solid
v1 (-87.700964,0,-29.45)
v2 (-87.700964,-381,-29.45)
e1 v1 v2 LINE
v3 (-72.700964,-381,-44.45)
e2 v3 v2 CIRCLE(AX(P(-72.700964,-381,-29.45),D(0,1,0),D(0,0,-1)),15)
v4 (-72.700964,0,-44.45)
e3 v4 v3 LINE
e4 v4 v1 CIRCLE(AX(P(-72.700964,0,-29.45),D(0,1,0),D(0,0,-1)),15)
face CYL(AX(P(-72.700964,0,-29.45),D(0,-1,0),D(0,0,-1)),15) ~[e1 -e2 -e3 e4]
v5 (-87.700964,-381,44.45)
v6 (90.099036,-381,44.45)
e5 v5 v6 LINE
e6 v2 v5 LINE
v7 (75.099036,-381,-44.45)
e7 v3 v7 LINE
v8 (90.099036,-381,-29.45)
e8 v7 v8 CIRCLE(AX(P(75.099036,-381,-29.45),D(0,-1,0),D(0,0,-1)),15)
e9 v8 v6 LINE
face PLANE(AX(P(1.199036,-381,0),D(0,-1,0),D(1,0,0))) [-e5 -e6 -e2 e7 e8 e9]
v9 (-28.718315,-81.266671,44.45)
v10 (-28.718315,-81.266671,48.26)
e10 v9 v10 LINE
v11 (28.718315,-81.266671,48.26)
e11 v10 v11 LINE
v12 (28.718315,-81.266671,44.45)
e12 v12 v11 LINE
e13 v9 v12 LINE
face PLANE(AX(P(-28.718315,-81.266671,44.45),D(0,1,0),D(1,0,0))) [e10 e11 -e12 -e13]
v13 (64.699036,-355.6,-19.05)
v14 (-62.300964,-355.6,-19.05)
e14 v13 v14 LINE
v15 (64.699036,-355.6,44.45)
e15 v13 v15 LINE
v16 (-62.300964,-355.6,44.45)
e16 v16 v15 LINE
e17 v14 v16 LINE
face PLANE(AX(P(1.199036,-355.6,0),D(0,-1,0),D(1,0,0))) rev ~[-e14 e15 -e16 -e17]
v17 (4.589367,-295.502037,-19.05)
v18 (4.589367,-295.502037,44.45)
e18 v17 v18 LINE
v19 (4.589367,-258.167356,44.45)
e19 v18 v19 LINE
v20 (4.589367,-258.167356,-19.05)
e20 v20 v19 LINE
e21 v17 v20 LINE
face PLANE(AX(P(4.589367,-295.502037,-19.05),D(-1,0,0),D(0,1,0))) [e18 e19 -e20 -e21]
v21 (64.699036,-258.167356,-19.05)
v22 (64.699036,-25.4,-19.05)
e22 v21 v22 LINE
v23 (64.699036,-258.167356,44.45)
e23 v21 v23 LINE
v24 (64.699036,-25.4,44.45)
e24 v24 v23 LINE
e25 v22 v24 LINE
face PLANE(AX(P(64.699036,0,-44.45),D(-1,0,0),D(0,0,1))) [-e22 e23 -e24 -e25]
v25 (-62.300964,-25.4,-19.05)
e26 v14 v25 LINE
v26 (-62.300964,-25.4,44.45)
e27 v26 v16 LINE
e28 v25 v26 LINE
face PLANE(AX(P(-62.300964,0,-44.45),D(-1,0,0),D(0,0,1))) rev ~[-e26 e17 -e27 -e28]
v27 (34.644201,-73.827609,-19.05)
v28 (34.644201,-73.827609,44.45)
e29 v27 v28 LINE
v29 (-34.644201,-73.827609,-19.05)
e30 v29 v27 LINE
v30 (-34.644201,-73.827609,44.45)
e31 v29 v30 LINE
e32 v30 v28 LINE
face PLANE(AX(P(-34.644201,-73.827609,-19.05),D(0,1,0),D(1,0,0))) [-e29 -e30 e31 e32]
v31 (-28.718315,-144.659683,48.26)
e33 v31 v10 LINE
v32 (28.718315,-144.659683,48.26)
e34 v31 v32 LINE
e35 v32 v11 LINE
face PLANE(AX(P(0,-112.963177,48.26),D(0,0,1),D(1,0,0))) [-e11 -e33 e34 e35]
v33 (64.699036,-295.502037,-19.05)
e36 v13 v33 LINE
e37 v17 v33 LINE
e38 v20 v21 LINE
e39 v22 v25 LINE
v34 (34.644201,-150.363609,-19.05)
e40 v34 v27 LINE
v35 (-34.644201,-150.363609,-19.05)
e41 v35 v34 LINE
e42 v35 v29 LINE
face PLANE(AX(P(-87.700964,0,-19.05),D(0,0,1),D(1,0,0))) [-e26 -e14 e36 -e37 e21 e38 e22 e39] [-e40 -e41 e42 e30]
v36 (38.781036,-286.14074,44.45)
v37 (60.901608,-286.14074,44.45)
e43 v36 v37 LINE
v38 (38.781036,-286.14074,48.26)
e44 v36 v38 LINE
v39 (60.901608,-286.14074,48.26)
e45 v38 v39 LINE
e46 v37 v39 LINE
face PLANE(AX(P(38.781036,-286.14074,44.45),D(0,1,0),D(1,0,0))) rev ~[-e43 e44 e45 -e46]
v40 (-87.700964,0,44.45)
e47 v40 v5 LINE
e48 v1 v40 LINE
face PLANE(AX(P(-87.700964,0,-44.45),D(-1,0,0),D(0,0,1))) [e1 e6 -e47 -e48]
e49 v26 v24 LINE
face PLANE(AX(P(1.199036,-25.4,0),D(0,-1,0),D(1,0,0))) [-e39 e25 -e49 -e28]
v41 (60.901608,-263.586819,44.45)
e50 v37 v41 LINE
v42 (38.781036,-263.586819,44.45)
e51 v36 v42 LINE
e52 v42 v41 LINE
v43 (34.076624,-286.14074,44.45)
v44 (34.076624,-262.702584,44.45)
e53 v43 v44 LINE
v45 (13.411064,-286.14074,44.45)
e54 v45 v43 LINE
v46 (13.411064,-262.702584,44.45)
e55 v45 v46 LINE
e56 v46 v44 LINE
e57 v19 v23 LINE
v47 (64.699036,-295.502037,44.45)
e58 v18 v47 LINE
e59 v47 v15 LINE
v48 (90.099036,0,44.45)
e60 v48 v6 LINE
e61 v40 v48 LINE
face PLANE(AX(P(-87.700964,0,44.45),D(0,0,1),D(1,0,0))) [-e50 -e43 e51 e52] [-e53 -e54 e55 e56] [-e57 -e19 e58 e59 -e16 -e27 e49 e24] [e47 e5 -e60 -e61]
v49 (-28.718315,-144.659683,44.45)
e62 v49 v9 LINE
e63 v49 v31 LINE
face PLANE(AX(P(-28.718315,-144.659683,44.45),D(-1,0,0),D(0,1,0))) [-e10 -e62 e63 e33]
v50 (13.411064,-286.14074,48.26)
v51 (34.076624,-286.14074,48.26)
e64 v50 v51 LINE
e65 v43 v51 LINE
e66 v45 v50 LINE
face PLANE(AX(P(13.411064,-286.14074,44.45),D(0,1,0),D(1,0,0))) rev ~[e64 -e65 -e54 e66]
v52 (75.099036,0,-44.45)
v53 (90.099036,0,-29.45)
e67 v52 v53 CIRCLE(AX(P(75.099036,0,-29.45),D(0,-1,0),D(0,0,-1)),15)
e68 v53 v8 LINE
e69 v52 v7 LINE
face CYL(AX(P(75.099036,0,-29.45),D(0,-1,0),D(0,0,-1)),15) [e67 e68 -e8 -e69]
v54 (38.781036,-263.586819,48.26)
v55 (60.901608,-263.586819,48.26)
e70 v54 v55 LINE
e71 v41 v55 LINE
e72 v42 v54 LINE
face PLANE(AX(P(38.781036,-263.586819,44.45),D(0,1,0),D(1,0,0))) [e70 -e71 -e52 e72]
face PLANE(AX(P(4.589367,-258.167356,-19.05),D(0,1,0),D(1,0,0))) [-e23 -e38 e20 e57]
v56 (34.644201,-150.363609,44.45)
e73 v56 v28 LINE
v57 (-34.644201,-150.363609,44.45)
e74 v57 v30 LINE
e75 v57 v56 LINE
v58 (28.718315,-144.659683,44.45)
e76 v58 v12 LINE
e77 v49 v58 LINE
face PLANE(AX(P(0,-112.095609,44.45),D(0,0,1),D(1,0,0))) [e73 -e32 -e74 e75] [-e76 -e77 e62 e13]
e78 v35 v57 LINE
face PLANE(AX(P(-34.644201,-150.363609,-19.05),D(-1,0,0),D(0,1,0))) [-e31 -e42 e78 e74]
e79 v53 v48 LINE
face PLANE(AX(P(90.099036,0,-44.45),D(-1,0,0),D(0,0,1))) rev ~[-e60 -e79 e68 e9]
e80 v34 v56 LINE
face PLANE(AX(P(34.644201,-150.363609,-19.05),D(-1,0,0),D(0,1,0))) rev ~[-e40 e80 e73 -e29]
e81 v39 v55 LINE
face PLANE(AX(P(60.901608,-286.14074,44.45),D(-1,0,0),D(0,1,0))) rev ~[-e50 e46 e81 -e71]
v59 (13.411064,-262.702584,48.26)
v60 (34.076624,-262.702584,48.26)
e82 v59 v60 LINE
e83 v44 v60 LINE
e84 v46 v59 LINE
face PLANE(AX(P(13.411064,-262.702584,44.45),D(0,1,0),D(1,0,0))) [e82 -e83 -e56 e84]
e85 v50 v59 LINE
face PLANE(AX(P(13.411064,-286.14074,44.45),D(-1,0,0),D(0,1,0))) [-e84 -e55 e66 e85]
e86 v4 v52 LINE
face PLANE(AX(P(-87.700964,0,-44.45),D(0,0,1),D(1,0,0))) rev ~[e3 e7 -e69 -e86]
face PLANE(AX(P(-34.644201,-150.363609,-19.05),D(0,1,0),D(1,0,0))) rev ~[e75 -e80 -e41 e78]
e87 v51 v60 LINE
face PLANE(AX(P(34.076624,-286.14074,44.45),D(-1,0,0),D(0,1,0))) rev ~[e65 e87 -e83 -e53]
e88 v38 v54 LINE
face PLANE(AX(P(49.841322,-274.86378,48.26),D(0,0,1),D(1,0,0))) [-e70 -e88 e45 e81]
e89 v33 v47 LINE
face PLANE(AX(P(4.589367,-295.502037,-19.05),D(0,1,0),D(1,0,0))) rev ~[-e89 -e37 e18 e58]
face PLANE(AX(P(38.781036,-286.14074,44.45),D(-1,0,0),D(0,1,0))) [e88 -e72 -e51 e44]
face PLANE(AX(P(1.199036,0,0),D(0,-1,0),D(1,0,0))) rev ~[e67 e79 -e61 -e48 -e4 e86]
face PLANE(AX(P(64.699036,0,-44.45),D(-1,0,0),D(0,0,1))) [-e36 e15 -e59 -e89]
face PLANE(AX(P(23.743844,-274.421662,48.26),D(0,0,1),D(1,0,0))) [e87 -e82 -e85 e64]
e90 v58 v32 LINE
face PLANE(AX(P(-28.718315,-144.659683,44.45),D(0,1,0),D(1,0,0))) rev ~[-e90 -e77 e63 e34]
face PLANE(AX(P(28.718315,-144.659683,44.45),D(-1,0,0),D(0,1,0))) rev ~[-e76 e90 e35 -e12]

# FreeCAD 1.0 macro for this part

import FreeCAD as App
import Part
import Sketcher
Q = App.Units.Quantity


def edges_at(feature, points):
    """Names of the edges that pass closest to the given points."""
    edges = feature.Shape.Edges
    near = lambda p: min(range(len(edges)), key=lambda i: edges[i].distToShape(Part.Vertex(*p))[0])
    return sorted({f"Edge{near(p) + 1}" for p in points})


def faces_at(feature, points):
    """Names of the faces that lie closest to the given points."""
    faces = feature.Shape.Faces
    near = lambda p: min(range(len(faces)), key=lambda i: faces[i].distToShape(Part.Vertex(*p))[0])
    return sorted({f"Face{near(p) + 1}" for p in points})


def add_polygon(sketch, points):
    """Adds a closed chain of lines whose ends are joined by coincident constraints."""
    first, n = sketch.GeometryCount, len(points)
    for a, b in zip(points, points[1:] + points[:1]):
        sketch.addGeometry(Part.LineSegment(App.Vector(*a, 0), App.Vector(*b, 0)), False)
    for i in range(n):
        sketch.addConstraint(Sketcher.Constraint("Coincident", first + i, 2, first + (i + 1) % n, 1))

doc = App.newDocument("Part")
body = doc.addObject("PartDesign::Body", "Body")

sketch1 = doc.addObject("Sketcher::SketchObject", "Sketch")
body.addObject(sketch1)
sketch1.AttachmentSupport = (doc.XZ_Plane, [""])
sketch1.MapMode = "FlatFace"
add_polygon(sketch1, [(-88, 44), (-88, -44), (90, -44), (90, 44)])
sketch1.addConstraint(Sketcher.Constraint("Vertical", 0))
sketch1.addConstraint(Sketcher.Constraint("Horizontal", 1))
sketch1.addConstraint(Sketcher.Constraint("Vertical", 2))
sketch1.addConstraint(Sketcher.Constraint("Horizontal", 3))
sketch1.addConstraint(Sketcher.Constraint("DistanceX", 1, 1, 1, 2, Q("7 in")))
sketch1.addConstraint(Sketcher.Constraint("DistanceY", 0, 2, 0, 1, Q("3.5 in")))
sketch1.addConstraint(Sketcher.Constraint("DistanceY", 0, 2, -1, 1, Q("1.75 in")))
sketch1.addConstraint(Sketcher.Constraint("DistanceX", 0, 2, -1, 1, Q("87.700964 mm")))
pad1 = doc.addObject("PartDesign::Pad", "Pad")
body.addObject(pad1)
pad1.Profile = sketch1
pad1.Length = Q("15 in")
doc.recompute()

thickness = doc.addObject("PartDesign::Thickness", "Thickness")
body.addObject(thickness)
thickness.Base = (pad1, faces_at(pad1, [(1.199, -190.5, 44.45)]))
thickness.Value = Q("1 in")
thickness.Reversed = True
thickness.Join = "Arc"

sketch2 = doc.addObject("Sketcher::SketchObject", "Sketch001")
body.addObject(sketch2)
sketch2.AttachmentSupport = (doc.XY_Plane, [""])
sketch2.MapMode = "FlatFace"
sketch2.AttachmentOffset = App.Placement(App.Vector(0, 0, -0.75 * 25.4), App.Rotation())
add_polygon(sketch2, [(-35, -74), (-35, -150), (35, -150), (35, -74)])
add_polygon(sketch2, [(5, -258), (5, -296), (65, -296), (65, -258)])
sketch2.addConstraint(Sketcher.Constraint("Vertical", 0))
sketch2.addConstraint(Sketcher.Constraint("Horizontal", 1))
sketch2.addConstraint(Sketcher.Constraint("Vertical", 2))
sketch2.addConstraint(Sketcher.Constraint("Horizontal", 3))
sketch2.addConstraint(Sketcher.Constraint("Vertical", 4))
sketch2.addConstraint(Sketcher.Constraint("Horizontal", 5))
sketch2.addConstraint(Sketcher.Constraint("Vertical", 6))
sketch2.addConstraint(Sketcher.Constraint("Horizontal", 7))
sketch2.addConstraint(Sketcher.Constraint("DistanceY", 0, 2, 0, 1, Q("76.536 mm")))
sketch2.addConstraint(Sketcher.Constraint("DistanceX", 5, 1, 5, 2, Q("60.10967 mm")))
sketch2.addConstraint(Sketcher.Constraint("DistanceY", 4, 2, 4, 1, Q("37.334681 mm")))
sketch2.addConstraint(Sketcher.Constraint("DistanceX", 0, 2, -1, 1, Q("34.644201 mm")))
sketch2.addConstraint(Sketcher.Constraint("DistanceX", -1, 1, 1, 2, Q("34.644201 mm")))
sketch2.addConstraint(Sketcher.Constraint("DistanceY", 0, 2, -1, 1, Q("150.363609 mm")))
sketch2.addConstraint(Sketcher.Constraint("DistanceX", -1, 1, 4, 2, Q("4.589367 mm")))
sketch2.addConstraint(Sketcher.Constraint("DistanceY", 4, 2, -1, 1, Q("295.502037 mm")))
pad2 = doc.addObject("PartDesign::Pad", "Pad001")
body.addObject(pad2)
pad2.Profile = sketch2
pad2.Length = Q("2.5 in")

sketch3 = doc.addObject("Sketcher::SketchObject", "Sketch002")
body.addObject(sketch3)
sketch3.AttachmentSupport = (doc.XY_Plane, [""])
sketch3.MapMode = "FlatFace"
sketch3.AttachmentOffset = App.Placement(App.Vector(0, 0, 1.75 * 25.4), App.Rotation())
add_polygon(sketch3, [(-29, -81), (-29, -145), (29, -145), (29, -81)])
add_polygon(sketch3, [(39, -264), (39, -286), (61, -286), (61, -264)])
add_polygon(sketch3, [(13, -263), (13, -286), (34, -286), (34, -263)])
sketch3.addConstraint(Sketcher.Constraint("Vertical", 0))
sketch3.addConstraint(Sketcher.Constraint("Horizontal", 1))
sketch3.addConstraint(Sketcher.Constraint("Vertical", 2))
sketch3.addConstraint(Sketcher.Constraint("Horizontal", 3))
sketch3.addConstraint(Sketcher.Constraint("Vertical", 4))
sketch3.addConstraint(Sketcher.Constraint("Horizontal", 5))
sketch3.addConstraint(Sketcher.Constraint("Vertical", 6))
sketch3.addConstraint(Sketcher.Constraint("Horizontal", 7))
sketch3.addConstraint(Sketcher.Constraint("Vertical", 8))
sketch3.addConstraint(Sketcher.Constraint("Horizontal", 9))
sketch3.addConstraint(Sketcher.Constraint("Vertical", 10))
sketch3.addConstraint(Sketcher.Constraint("Horizontal", 11))
sketch3.addConstraint(Sketcher.Constraint("Horizontal", 5, 2, 8, 2))
sketch3.addConstraint(Sketcher.Constraint("DistanceX", 1, 1, 1, 2, Q("57.43663 mm")))
sketch3.addConstraint(Sketcher.Constraint("DistanceX", 9, 1, 9, 2, Q("20.66556 mm")))
sketch3.addConstraint(Sketcher.Constraint("DistanceY", 0, 2, 0, 1, Q("63.393012 mm")))
sketch3.addConstraint(Sketcher.Constraint("DistanceY", 4, 2, 4, 1, Q("22.553921 mm")))
sketch3.addConstraint(Sketcher.Constraint("DistanceX", 5, 1, 5, 2, Q("22.120573 mm")))
sketch3.addConstraint(Sketcher.Constraint("DistanceY", 8, 2, 8, 1, Q("23.438156 mm")))
sketch3.addConstraint(Sketcher.Constraint("DistanceY", 2, 2, -1, 1, Q("81.266671 mm")))
sketch3.addConstraint(Sketcher.Constraint("DistanceY", 4, 2, -1, 1, Q("286.14074 mm")))
sketch3.addConstraint(Sketcher.Constraint("DistanceX", -1, 1, 5, 2, Q("60.901608 mm")))
sketch3.addConstraint(Sketcher.Constraint("DistanceX", 1, 2, 4, 2, Q("10.062721 mm")))
sketch3.addConstraint(Sketcher.Constraint("DistanceX", 8, 2, 4, 2, Q("25.369972 mm")))
pad3 = doc.addObject("PartDesign::Pad", "Pad002")
body.addObject(pad3)
pad3.Profile = sketch3
pad3.Length = Q("0.15 in")
doc.recompute()

fillet = doc.addObject("PartDesign::Fillet", "Fillet")
body.addObject(fillet)
fillet.Base = (pad3, edges_at(pad3, [(90.099, -190.5, -44.45)]))
fillet.Radius = 15
doc.recompute()

fillet2 = doc.addObject("PartDesign::Fillet", "Fillet001")
body.addObject(fillet2)
fillet2.Base = (fillet, edges_at(fillet, [(-87.701, -190.5, -44.45)]))
fillet2.Radius = 15

doc.recompute()
